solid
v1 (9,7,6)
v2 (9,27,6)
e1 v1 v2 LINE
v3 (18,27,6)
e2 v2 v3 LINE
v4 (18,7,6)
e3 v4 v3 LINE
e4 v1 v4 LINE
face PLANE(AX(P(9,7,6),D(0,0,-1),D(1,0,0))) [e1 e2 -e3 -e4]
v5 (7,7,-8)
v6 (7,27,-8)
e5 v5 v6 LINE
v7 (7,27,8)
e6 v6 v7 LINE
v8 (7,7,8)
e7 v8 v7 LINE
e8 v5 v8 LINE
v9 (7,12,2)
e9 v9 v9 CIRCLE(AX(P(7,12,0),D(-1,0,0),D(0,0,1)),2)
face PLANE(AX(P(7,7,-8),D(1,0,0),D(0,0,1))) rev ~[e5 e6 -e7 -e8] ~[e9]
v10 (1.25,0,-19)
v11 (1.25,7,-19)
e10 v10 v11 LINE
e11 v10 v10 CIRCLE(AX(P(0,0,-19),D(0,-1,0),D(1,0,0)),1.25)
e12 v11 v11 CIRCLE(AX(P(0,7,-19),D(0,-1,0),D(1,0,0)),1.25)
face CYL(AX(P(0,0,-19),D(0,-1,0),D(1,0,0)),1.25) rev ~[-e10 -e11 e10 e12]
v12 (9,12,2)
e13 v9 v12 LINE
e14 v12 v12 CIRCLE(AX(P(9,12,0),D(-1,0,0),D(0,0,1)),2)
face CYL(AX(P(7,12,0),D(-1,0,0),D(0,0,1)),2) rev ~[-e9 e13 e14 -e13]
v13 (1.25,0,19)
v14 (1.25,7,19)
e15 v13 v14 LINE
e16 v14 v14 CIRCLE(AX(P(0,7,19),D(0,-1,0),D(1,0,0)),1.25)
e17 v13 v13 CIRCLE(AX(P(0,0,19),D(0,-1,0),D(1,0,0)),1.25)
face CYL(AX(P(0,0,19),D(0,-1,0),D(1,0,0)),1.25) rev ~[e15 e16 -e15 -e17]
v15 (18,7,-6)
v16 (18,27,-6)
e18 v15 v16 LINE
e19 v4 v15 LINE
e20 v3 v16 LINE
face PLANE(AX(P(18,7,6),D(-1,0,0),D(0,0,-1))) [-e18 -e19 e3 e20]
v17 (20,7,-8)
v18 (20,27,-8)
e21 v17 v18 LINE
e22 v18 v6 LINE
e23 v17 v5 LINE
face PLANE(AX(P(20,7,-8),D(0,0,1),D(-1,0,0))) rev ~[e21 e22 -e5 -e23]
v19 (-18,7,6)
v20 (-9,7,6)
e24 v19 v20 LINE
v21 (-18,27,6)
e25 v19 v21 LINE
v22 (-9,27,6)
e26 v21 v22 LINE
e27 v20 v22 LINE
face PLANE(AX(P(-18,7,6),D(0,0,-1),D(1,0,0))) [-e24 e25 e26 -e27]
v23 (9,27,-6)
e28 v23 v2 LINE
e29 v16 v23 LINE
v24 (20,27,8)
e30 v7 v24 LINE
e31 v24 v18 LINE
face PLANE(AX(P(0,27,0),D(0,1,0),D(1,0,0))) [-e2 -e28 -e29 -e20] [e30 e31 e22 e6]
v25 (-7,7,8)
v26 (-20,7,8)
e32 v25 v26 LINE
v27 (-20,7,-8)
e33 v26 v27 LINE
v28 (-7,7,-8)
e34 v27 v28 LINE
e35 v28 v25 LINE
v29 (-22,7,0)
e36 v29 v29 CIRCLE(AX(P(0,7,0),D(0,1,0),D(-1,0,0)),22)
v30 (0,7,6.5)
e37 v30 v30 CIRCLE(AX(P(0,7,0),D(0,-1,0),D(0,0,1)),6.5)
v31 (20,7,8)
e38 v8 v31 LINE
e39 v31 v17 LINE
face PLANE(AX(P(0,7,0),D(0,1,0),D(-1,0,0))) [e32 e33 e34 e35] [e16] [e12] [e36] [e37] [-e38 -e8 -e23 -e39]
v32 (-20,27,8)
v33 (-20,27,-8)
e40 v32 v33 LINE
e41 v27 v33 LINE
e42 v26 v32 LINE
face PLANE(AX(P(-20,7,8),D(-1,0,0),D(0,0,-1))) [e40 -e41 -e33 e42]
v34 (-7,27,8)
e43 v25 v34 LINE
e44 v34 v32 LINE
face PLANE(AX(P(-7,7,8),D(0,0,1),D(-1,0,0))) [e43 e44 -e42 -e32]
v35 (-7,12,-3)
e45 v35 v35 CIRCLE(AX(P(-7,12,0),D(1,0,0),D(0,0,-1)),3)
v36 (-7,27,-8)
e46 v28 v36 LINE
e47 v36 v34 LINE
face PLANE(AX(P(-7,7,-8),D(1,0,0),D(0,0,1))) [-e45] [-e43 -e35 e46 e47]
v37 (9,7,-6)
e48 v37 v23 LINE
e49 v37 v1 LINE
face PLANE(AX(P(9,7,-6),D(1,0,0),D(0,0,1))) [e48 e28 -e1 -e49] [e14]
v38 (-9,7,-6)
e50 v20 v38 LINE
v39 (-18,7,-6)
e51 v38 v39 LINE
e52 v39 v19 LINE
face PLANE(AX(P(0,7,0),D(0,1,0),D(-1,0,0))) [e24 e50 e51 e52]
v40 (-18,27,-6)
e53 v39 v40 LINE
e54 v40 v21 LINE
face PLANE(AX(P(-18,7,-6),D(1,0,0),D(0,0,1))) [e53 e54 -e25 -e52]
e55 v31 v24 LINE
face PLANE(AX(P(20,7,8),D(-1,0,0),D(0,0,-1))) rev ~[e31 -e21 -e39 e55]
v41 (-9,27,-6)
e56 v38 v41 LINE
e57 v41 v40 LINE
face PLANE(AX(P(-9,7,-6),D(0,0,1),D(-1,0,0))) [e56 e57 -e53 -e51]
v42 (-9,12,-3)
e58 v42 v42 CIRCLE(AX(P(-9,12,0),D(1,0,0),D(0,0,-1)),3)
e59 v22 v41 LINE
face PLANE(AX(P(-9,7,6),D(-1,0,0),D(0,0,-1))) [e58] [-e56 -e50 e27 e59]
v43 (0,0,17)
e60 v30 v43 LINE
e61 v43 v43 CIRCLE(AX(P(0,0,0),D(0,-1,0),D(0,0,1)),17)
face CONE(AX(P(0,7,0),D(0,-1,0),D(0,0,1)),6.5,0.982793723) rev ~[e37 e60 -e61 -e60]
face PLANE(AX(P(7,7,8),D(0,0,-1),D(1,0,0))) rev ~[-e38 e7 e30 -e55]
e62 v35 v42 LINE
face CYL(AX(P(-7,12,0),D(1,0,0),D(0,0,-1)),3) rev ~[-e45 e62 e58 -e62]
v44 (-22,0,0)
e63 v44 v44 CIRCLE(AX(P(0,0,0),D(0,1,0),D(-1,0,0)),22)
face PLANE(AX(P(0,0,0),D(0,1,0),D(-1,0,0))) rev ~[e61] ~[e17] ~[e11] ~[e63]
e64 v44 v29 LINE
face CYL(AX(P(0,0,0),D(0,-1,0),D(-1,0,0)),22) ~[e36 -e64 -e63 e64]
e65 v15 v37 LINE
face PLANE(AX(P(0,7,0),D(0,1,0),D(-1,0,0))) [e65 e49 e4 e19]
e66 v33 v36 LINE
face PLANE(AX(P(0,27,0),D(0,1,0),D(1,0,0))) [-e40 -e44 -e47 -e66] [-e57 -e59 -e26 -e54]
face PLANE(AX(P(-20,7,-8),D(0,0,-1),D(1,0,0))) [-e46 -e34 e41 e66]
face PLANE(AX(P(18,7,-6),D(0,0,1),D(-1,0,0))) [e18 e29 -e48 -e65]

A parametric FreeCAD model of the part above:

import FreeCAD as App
import Part
import Sketcher

doc = App.newDocument("Part")
body = doc.addObject("PartDesign::Body", "Body")

# Sketch on XZ plane
sketch1 = body.newObject("Sketcher::SketchObject", "Sketch")
sketch1.AttachmentSupport = (doc.getObject("XZ_Plane"), [""])
sketch1.MapMode = "FlatFace"
sketch1.addGeometry(Part.Circle(App.Vector(0, 0, 0), App.Vector(0, 0, 1), 22), False)
sketch1.addConstraint([
    Sketcher.Constraint("Coincident", 0, 3, -1, 1),
    Sketcher.Constraint("Diameter", 0, 44.0),
])
pad1 = body.newObject("PartDesign::Pad", "Pad")
pad1.Profile = sketch1
pad1.Length = 7
pad1.Reversed = True

# Sketch on XZ plane
sketch2 = body.newObject("Sketcher::SketchObject", "Sketch001")
sketch2.AttachmentSupport = (doc.getObject("XZ_Plane"), [""])
sketch2.MapMode = "FlatFace"
sketch2.AttachmentOffset = App.Placement(App.Vector(0, 0, -7), App.Rotation())
sketch2.addGeometry([
    Part.LineSegment(App.Vector(20, 8, 0), App.Vector(20, -8, 0)),  # 0
    Part.LineSegment(App.Vector(20, -8, 0), App.Vector(7, -8, 0)),  # 1
    Part.LineSegment(App.Vector(7, -8, 0), App.Vector(7, 8, 0)),  # 2
    Part.LineSegment(App.Vector(7, 8, 0), App.Vector(20, 8, 0)),  # 3
    Part.LineSegment(App.Vector(9, -6, 0), App.Vector(18, -6, 0)),  # 4
    Part.LineSegment(App.Vector(18, -6, 0), App.Vector(18, 6, 0)),  # 5
    Part.LineSegment(App.Vector(18, 6, 0), App.Vector(9, 6, 0)),  # 6
    Part.LineSegment(App.Vector(9, 6, 0), App.Vector(9, -6, 0)),  # 7
    Part.LineSegment(App.Vector(-7, -8, 0), App.Vector(-20, -8, 0)),  # 8
    Part.LineSegment(App.Vector(-20, -8, 0), App.Vector(-20, 8, 0)),  # 9
    Part.LineSegment(App.Vector(-20, 8, 0), App.Vector(-7, 8, 0)),  # 10
    Part.LineSegment(App.Vector(-7, 8, 0), App.Vector(-7, -8, 0)),  # 11
    Part.LineSegment(App.Vector(-18, -6, 0), App.Vector(-9, -6, 0)),  # 12
    Part.LineSegment(App.Vector(-9, -6, 0), App.Vector(-9, 6, 0)),  # 13
    Part.LineSegment(App.Vector(-9, 6, 0), App.Vector(-18, 6, 0)),  # 14
    Part.LineSegment(App.Vector(-18, 6, 0), App.Vector(-18, -6, 0)),  # 15
], False)
sketch2.addConstraint([
    Sketcher.Constraint("Coincident", 0, 2, 1, 1),
    Sketcher.Constraint("Coincident", 1, 2, 2, 1),
    Sketcher.Constraint("Coincident", 2, 2, 3, 1),
    Sketcher.Constraint("Coincident", 3, 2, 0, 1),
    Sketcher.Constraint("Coincident", 4, 2, 5, 1),
    Sketcher.Constraint("Coincident", 5, 2, 6, 1),
    Sketcher.Constraint("Coincident", 6, 2, 7, 1),
    Sketcher.Constraint("Coincident", 7, 2, 4, 1),
    Sketcher.Constraint("Coincident", 8, 2, 9, 1),
    Sketcher.Constraint("Coincident", 9, 2, 10, 1),
    Sketcher.Constraint("Coincident", 10, 2, 11, 1),
    Sketcher.Constraint("Coincident", 11, 2, 8, 1),
    Sketcher.Constraint("Coincident", 12, 2, 13, 1),
    Sketcher.Constraint("Coincident", 13, 2, 14, 1),
    Sketcher.Constraint("Coincident", 14, 2, 15, 1),
    Sketcher.Constraint("Coincident", 15, 2, 12, 1),
    Sketcher.Constraint("Vertical", 0),
    Sketcher.Constraint("Horizontal", 1),
    Sketcher.Constraint("Vertical", 2),
    Sketcher.Constraint("Horizontal", 3),
    Sketcher.Constraint("Horizontal", 4),
    Sketcher.Constraint("Vertical", 5),
    Sketcher.Constraint("Horizontal", 6),
    Sketcher.Constraint("Vertical", 7),
    Sketcher.Constraint("Horizontal", 8),
    Sketcher.Constraint("Vertical", 9),
    Sketcher.Constraint("Horizontal", 10),
    Sketcher.Constraint("Vertical", 11),
    Sketcher.Constraint("Horizontal", 12),
    Sketcher.Constraint("Vertical", 13),
    Sketcher.Constraint("Horizontal", 14),
    Sketcher.Constraint("Vertical", 15),
    Sketcher.Constraint("Symmetric", 3, 2, 8, 2, -1, 1),
    Sketcher.Constraint("Symmetric", 1, 2, 10, 2, -1, 1),
    Sketcher.Constraint("Symmetric", 6, 2, 12, 2, -1, 1),
    Sketcher.Constraint("Symmetric", 4, 2, 14, 2, -1, 1),
    Sketcher.Constraint("Horizontal", 1, 2, 8, 2),
    Sketcher.Constraint("Horizontal", 7, 2, 12, 2),
    Sketcher.Constraint("DistanceX", 1, 2, 1, 1, 13.0),
    Sketcher.Constraint("DistanceX", 4, 1, 4, 2, 9.0),
    Sketcher.Constraint("DistanceY", 0, 2, 0, 1, 16.0),
    Sketcher.Constraint("DistanceY", 5, 1, 5, 2, 12.0),
    Sketcher.Constraint("DistanceX", -1, 1, 1, 2, 7.0),
    Sketcher.Constraint("DistanceX", -1, 1, 6, 2, 9.0),
])
pad2 = body.newObject("PartDesign::Pad", "Pad001")
pad2.Profile = sketch2
pad2.Length = 20
pad2.Reversed = True

# Sketch on XZ plane
sketch3 = body.newObject("Sketcher::SketchObject", "Sketch002")
sketch3.AttachmentSupport = (doc.getObject("XZ_Plane"), [""])
sketch3.MapMode = "FlatFace"
sketch3.addGeometry([
    Part.Circle(App.Vector(0, 19, 0), App.Vector(0, 0, 1), 1.25),
    Part.Circle(App.Vector(0, -19, 0), App.Vector(0, 0, 1), 1.25),
], False)
sketch3.addConstraint([
    Sketcher.Constraint("Equal", 0, 1),
    Sketcher.Constraint("Symmetric", 0, 3, 1, 3, -1, 1),
    Sketcher.Constraint("PointOnObject", 0, 3, -2),
    Sketcher.Constraint("Diameter", 0, 2.5),
    Sketcher.Constraint("DistanceY", -1, 1, 0, 3, 19.0),
])
pocket1 = body.newObject("PartDesign::Pocket", "Pocket")
pocket1.Profile = sketch3
pocket1.Length = 14

# Sketch on YZ plane
sketch4 = body.newObject("Sketcher::SketchObject", "Sketch003")
sketch4.AttachmentSupport = (doc.getObject("YZ_Plane"), [""])
sketch4.MapMode = "FlatFace"
sketch4.AttachmentOffset = App.Placement(App.Vector(0, 0, -7), App.Rotation())
sketch4.addGeometry(Part.Circle(App.Vector(12, 0, 0), App.Vector(0, 0, 1), 3), False)
sketch4.addConstraint([
    Sketcher.Constraint("PointOnObject", 0, 3, -1),
    Sketcher.Constraint("Diameter", 0, 6.0),
    Sketcher.Constraint("DistanceX", -1, 1, 0, 3, 12.0),
])
pocket2 = body.newObject("PartDesign::Pocket", "Pocket001")
pocket2.Profile = sketch4
pocket2.Length = 2

# Sketch on YZ plane
sketch5 = body.newObject("Sketcher::SketchObject", "Sketch004")
sketch5.AttachmentSupport = (doc.getObject("YZ_Plane"), [""])
sketch5.MapMode = "FlatFace"
sketch5.AttachmentOffset = App.Placement(App.Vector(0, 0, 7), App.Rotation())
sketch5.addGeometry(Part.Circle(App.Vector(12, 0, 0), App.Vector(0, 0, 1), 2), False)
sketch5.addConstraint([
    Sketcher.Constraint("PointOnObject", 0, 3, -1),
    Sketcher.Constraint("Diameter", 0, 4.0),
    Sketcher.Constraint("DistanceX", -1, 1, 0, 3, 12.0),
])
pocket3 = body.newObject("PartDesign::Pocket", "Pocket002")
pocket3.Profile = sketch5
pocket3.Length = 2
pocket3.Reversed = True

# Sketch on YZ plane
sketch6 = body.newObject("Sketcher::SketchObject", "Sketch005")
sketch6.AttachmentSupport = (doc.getObject("YZ_Plane"), [""])
sketch6.MapMode = "FlatFace"
sketch6.addGeometry([
    Part.LineSegment(App.Vector(7, 0, 0), App.Vector(7, 6.5, 0)),
    Part.LineSegment(App.Vector(7, 6.5, 0), App.Vector(0, 17, 0)),
    Part.LineSegment(App.Vector(0, 17, 0), App.Vector(0, 0, 0)),
    Part.LineSegment(App.Vector(0, 0, 0), App.Vector(7, 0, 0)),
], False)
sketch6.addConstraint([
    Sketcher.Constraint("Coincident", 0, 2, 1, 1),
    Sketcher.Constraint("Coincident", 1, 2, 2, 1),
    Sketcher.Constraint("Coincident", 2, 2, 3, 1),
    Sketcher.Constraint("Coincident", 3, 2, 0, 1),
    Sketcher.Constraint("Vertical", 0),
    Sketcher.Constraint("Vertical", 2),
    Sketcher.Constraint("Horizontal", 3),
    Sketcher.Constraint("Coincident", 2, 2, -1, 1),
    Sketcher.Constraint("DistanceX", 3, 1, 3, 2, 7.0),
    Sketcher.Constraint("DistanceY", 2, 2, 2, 1, 17.0),
    Sketcher.Constraint("DistanceY", 0, 1, 0, 2, 6.5),
])
groove = body.newObject("PartDesign::Groove", "Groove")
groove.Profile = sketch6
groove.ReferenceAxis = (sketch6, ["H_Axis"])
groove.Angle = 360

doc.recompute()
